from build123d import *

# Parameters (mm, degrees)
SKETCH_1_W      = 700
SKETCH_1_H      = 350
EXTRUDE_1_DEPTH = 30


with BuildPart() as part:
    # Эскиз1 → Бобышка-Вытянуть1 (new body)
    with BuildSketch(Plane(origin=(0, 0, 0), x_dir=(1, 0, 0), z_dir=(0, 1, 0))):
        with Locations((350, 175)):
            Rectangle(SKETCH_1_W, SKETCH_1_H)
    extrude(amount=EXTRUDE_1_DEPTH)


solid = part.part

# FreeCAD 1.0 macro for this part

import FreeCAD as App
import Part
import Sketcher
from FreeCAD import Vector

doc = App.newDocument("Part")
body = doc.addObject("PartDesign::Body", "Body")

# Sketch on XZ plane
sketch1 = body.newObject("Sketcher::SketchObject", "Sketch")
sketch1.AttachmentSupport = (doc.getObject("XZ_Plane"), [""])
sketch1.MapMode = "FlatFace"
sketch1.addGeometry([
    Part.LineSegment(Vector(0, -350, 0), Vector(0, 0, 0)),
    Part.LineSegment(Vector(0, 0, 0), Vector(700, 0, 0)),
    Part.LineSegment(Vector(700, 0, 0), Vector(700, -350, 0)),
    Part.LineSegment(Vector(700, -350, 0), Vector(0, -350, 0)),
], False)
sketch1.addConstraint([
    Sketcher.Constraint("Coincident", 0, 2, 1, 1),
    Sketcher.Constraint("Coincident", 1, 2, 2, 1),
    Sketcher.Constraint("Coincident", 2, 2, 3, 1),
    Sketcher.Constraint("Coincident", 3, 2, 0, 1),
    Sketcher.Constraint("Vertical", 0),
    Sketcher.Constraint("Horizontal", 1),
    Sketcher.Constraint("Vertical", 2),
    Sketcher.Constraint("Horizontal", 3),
    Sketcher.Constraint("Coincident", 0, 2, -1, 1),
    Sketcher.Constraint("DistanceX", 1, 1, 1, 2, 700.0),
    Sketcher.Constraint("DistanceY", 0, 1, 0, 2, 350.0),
])
pad1 = body.newObject("PartDesign::Pad", "Pad")
pad1.Profile = sketch1
pad1.Length = 30
pad1.Reversed = True

doc.recompute()
